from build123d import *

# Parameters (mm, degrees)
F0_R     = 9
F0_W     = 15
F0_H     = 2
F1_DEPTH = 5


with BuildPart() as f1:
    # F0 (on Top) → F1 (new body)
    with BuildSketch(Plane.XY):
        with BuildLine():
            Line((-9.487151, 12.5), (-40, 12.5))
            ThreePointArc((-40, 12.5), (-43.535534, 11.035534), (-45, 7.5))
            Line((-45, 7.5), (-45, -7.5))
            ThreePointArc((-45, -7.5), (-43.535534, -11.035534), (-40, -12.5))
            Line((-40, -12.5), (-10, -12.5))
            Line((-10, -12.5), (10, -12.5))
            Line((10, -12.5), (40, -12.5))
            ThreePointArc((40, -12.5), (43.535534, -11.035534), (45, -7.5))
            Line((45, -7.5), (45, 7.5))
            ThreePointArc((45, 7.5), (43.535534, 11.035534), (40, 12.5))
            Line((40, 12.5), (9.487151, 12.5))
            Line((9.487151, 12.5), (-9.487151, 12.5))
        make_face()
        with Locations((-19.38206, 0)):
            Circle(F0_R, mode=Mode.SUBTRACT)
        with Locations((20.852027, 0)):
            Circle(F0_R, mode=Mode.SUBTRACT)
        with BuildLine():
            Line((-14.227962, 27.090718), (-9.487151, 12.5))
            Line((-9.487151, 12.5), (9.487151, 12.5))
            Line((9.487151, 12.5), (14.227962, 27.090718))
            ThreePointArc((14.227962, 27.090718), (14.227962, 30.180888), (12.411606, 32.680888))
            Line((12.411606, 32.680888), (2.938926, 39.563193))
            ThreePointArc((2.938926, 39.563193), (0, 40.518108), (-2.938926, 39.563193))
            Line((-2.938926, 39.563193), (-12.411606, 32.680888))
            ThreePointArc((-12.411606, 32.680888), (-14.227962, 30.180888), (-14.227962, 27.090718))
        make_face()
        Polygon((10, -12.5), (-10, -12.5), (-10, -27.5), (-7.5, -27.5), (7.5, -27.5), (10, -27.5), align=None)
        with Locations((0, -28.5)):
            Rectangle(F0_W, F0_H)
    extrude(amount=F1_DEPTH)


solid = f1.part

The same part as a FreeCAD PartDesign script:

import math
import FreeCAD as App
import Part
import Sketcher
Q = App.Units.Quantity

doc = App.newDocument("Part")
body = doc.addObject("PartDesign::Body", "Body")

# Sketch on XY plane
sketch1 = body.newObject("Sketcher::SketchObject", "Sketch")
sketch1.AttachmentSupport = (doc.getObject("XY_Plane"), [""])
sketch1.MapMode = "FlatFace"
sketch1.addGeometry(Part.ArcOfCircle(Part.Circle(App.Vector(-40, 7.5, 0), App.Vector(0, 0, 1), 5), math.radians(90), math.radians(180)), False)
sketch1.addGeometry(Part.LineSegment(App.Vector(-45, 7.5, 0), App.Vector(-45, -7.5, 0)), False)
sketch1.addGeometry(Part.ArcOfCircle(Part.Circle(App.Vector(-40, -7.5, 0), App.Vector(0, 0, 1), 5), math.radians(180), math.radians(270)), False)
sketch1.addGeometry(Part.LineSegment(App.Vector(-40, -12.5, 0), App.Vector(-10, -12.5, 0)), False)
sketch1.addGeometry(Part.LineSegment(App.Vector(-10, -12.5, 0), App.Vector(-10, -27.5, 0)), False)
sketch1.addGeometry(Part.LineSegment(App.Vector(-10, -27.5, 0), App.Vector(-7.5, -27.5, 0)), False)
sketch1.addGeometry(Part.LineSegment(App.Vector(-7.5, -27.5, 0), App.Vector(-7.5, -29.5, 0)), False)
sketch1.addGeometry(Part.LineSegment(App.Vector(-7.5, -29.5, 0), App.Vector(7.5, -29.5, 0)), False)
sketch1.addGeometry(Part.LineSegment(App.Vector(7.5, -29.5, 0), App.Vector(7.5, -27.5, 0)), False)
sketch1.addGeometry(Part.LineSegment(App.Vector(7.5, -27.5, 0), App.Vector(10, -27.5, 0)), False)
sketch1.addGeometry(Part.LineSegment(App.Vector(10, -27.5, 0), App.Vector(10, -12.5, 0)), False)
sketch1.addGeometry(Part.LineSegment(App.Vector(10, -12.5, 0), App.Vector(40, -12.5, 0)), False)
sketch1.addGeometry(Part.ArcOfCircle(Part.Circle(App.Vector(40, -7.5, 0), App.Vector(0, 0, 1), 5), math.radians(-90), math.radians(0)), False)
sketch1.addGeometry(Part.LineSegment(App.Vector(45, -7.5, 0), App.Vector(45, 7.5, 0)), False)
sketch1.addGeometry(Part.ArcOfCircle(Part.Circle(App.Vector(40, 7.5, 0), App.Vector(0, 0, 1), 5), math.radians(0), math.radians(90)), False)
sketch1.addGeometry(Part.LineSegment(App.Vector(40, 12.5, 0), App.Vector(9.5, 12.5, 0)), False)
sketch1.addGeometry(Part.LineSegment(App.Vector(9.5, 12.5, 0), App.Vector(14.2, 27.1, 0)), False)
sketch1.addGeometry(Part.ArcOfCircle(Part.Circle(App.Vector(9.5, 28.6, 0), App.Vector(0, 0, 1), 5), math.radians(-18), math.radians(54)), False)
sketch1.addGeometry(Part.LineSegment(App.Vector(12.4, 32.7, 0), App.Vector(2.9, 39.6, 0)), False)
sketch1.addGeometry(Part.ArcOfCircle(Part.Circle(App.Vector(0, 35.5, 0), App.Vector(0, 0, 1), 5), math.radians(54), math.radians(126)), False)
sketch1.addGeometry(Part.LineSegment(App.Vector(-2.9, 39.6, 0), App.Vector(-12.4, 32.7, 0)), False)
sketch1.addGeometry(Part.ArcOfCircle(Part.Circle(App.Vector(-9.5, 28.6, 0), App.Vector(0, 0, 1), 5), math.radians(126), math.radians(198)), False)
sketch1.addGeometry(Part.LineSegment(App.Vector(-14.2, 27.1, 0), App.Vector(-9.5, 12.5, 0)), False)
sketch1.addGeometry(Part.LineSegment(App.Vector(-9.5, 12.5, 0), App.Vector(-40, 12.5, 0)), False)
sketch1.addGeometry(Part.Circle(App.Vector(-19.4, 0, 0), App.Vector(0, 0, 1), 9), False)
sketch1.addGeometry(Part.Circle(App.Vector(20.9, 0, 0), App.Vector(0, 0, 1), 9), False)
sketch1.addConstraint(Sketcher.Constraint("Tangent", 0, 2, 1, 1))
sketch1.addConstraint(Sketcher.Constraint("Tangent", 1, 2, 2, 1))
sketch1.addConstraint(Sketcher.Constraint("Tangent", 2, 2, 3, 1))
sketch1.addConstraint(Sketcher.Constraint("Coincident", 3, 2, 4, 1))
sketch1.addConstraint(Sketcher.Constraint("Coincident", 4, 2, 5, 1))
sketch1.addConstraint(Sketcher.Constraint("Coincident", 5, 2, 6, 1))
sketch1.addConstraint(Sketcher.Constraint("Coincident", 6, 2, 7, 1))
sketch1.addConstraint(Sketcher.Constraint("Coincident", 7, 2, 8, 1))
sketch1.addConstraint(Sketcher.Constraint("Coincident", 8, 2, 9, 1))
sketch1.addConstraint(Sketcher.Constraint("Coincident", 9, 2, 10, 1))
sketch1.addConstraint(Sketcher.Constraint("Coincident", 10, 2, 11, 1))
sketch1.addConstraint(Sketcher.Constraint("Tangent", 11, 2, 12, 1))
sketch1.addConstraint(Sketcher.Constraint("Tangent", 12, 2, 13, 1))
sketch1.addConstraint(Sketcher.Constraint("Tangent", 13, 2, 14, 1))
sketch1.addConstraint(Sketcher.Constraint("Tangent", 14, 2, 15, 1))
sketch1.addConstraint(Sketcher.Constraint("Coincident", 15, 2, 16, 1))
sketch1.addConstraint(Sketcher.Constraint("Tangent", 16, 2, 17, 1))
sketch1.addConstraint(Sketcher.Constraint("Tangent", 17, 2, 18, 1))
sketch1.addConstraint(Sketcher.Constraint("Tangent", 18, 2, 19, 1))
sketch1.addConstraint(Sketcher.Constraint("Tangent", 19, 2, 20, 1))
sketch1.addConstraint(Sketcher.Constraint("Tangent", 20, 2, 21, 1))
sketch1.addConstraint(Sketcher.Constraint("Tangent", 21, 2, 22, 1))
sketch1.addConstraint(Sketcher.Constraint("Coincident", 22, 2, 23, 1))
sketch1.addConstraint(Sketcher.Constraint("Tangent", 23, 2, 0, 1))
sketch1.addConstraint(Sketcher.Constraint("Vertical", 1))
sketch1.addConstraint(Sketcher.Constraint("Horizontal", 3))
sketch1.addConstraint(Sketcher.Constraint("Vertical", 4))
sketch1.addConstraint(Sketcher.Constraint("Horizontal", 5))
sketch1.addConstraint(Sketcher.Constraint("Vertical", 6))
sketch1.addConstraint(Sketcher.Constraint("Horizontal", 7))
sketch1.addConstraint(Sketcher.Constraint("Vertical", 8))
sketch1.addConstraint(Sketcher.Constraint("Horizontal", 9))
sketch1.addConstraint(Sketcher.Constraint("Vertical", 10))
sketch1.addConstraint(Sketcher.Constraint("Horizontal", 11))
sketch1.addConstraint(Sketcher.Constraint("Vertical", 13))
sketch1.addConstraint(Sketcher.Constraint("Horizontal", 15))
sketch1.addConstraint(Sketcher.Constraint("Horizontal", 23))
sketch1.addConstraint(Sketcher.Constraint("Equal", 0, 2))
sketch1.addConstraint(Sketcher.Constraint("Equal", 2, 12))
sketch1.addConstraint(Sketcher.Constraint("Equal", 12, 14))
sketch1.addConstraint(Sketcher.Constraint("Equal", 14, 17))
sketch1.addConstraint(Sketcher.Constraint("Equal", 17, 19))
sketch1.addConstraint(Sketcher.Constraint("Equal", 19, 21))
sketch1.addConstraint(Sketcher.Constraint("Equal", 24, 25))
sketch1.addConstraint(Sketcher.Constraint("Symmetric", 0, 3, 12, 3, -1, 1))
sketch1.addConstraint(Sketcher.Constraint("Symmetric", 17, 3, 21, 3, -2))
sketch1.addConstraint(Sketcher.Constraint("Symmetric", 5, 2, 8, 2, -2))
sketch1.addConstraint(Sketcher.Constraint("Symmetric", 3, 2, 10, 2, -2))
sketch1.addConstraint(Sketcher.Constraint("Symmetric", 15, 2, 22, 2, -2))
sketch1.addConstraint(Sketcher.Constraint("PointOnObject", 19, 3, -2))
sketch1.addConstraint(Sketcher.Constraint("PointOnObject", 24, 3, -1))
sketch1.addConstraint(Sketcher.Constraint("PointOnObject", 25, 3, -1))
sketch1.addConstraint(Sketcher.Constraint("Equal", 7, 1))
sketch1.addConstraint(Sketcher.Constraint("Equal", 1, 4))
sketch1.addConstraint(Sketcher.Constraint("Diameter", 24, Q("18 mm")))
sketch1.addConstraint(Sketcher.Constraint("Radius", 0, Q("5 mm")))
sketch1.addConstraint(Sketcher.Constraint("DistanceX", 3, 1, 3, 2, Q("30 mm")))
sketch1.addConstraint(Sketcher.Constraint("DistanceX", 7, 1, 7, 2, Q("15 mm")))
sketch1.addConstraint(Sketcher.Constraint("DistanceY", 6, 2, 6, 1, Q("2 mm")))
sketch1.addConstraint(Sketcher.Constraint("Angle", 16, Q("72.000002 deg")))
sketch1.addConstraint(Sketcher.Constraint("Angle", 18, Q("144 deg")))
sketch1.addConstraint(Sketcher.Constraint("DistanceX", 5, 1, 5, 2, Q("2.5 mm")))
sketch1.addConstraint(Sketcher.Constraint("DistanceX", 15, 2, 15, 1, Q("30.512849 mm")))
sketch1.addConstraint(Sketcher.Constraint("Distance", 16, Q("15.341589 mm")))
sketch1.addConstraint(Sketcher.Constraint("DistanceX", 24, 3, -1, 1, Q("19.38206 mm")))
sketch1.addConstraint(Sketcher.Constraint("DistanceX", 17, 3, 25, 3, Q("11.379348 mm")))
pad1 = body.newObject("PartDesign::Pad", "Pad")
pad1.Profile = sketch1
pad1.Length = 5

doc.recompute()
